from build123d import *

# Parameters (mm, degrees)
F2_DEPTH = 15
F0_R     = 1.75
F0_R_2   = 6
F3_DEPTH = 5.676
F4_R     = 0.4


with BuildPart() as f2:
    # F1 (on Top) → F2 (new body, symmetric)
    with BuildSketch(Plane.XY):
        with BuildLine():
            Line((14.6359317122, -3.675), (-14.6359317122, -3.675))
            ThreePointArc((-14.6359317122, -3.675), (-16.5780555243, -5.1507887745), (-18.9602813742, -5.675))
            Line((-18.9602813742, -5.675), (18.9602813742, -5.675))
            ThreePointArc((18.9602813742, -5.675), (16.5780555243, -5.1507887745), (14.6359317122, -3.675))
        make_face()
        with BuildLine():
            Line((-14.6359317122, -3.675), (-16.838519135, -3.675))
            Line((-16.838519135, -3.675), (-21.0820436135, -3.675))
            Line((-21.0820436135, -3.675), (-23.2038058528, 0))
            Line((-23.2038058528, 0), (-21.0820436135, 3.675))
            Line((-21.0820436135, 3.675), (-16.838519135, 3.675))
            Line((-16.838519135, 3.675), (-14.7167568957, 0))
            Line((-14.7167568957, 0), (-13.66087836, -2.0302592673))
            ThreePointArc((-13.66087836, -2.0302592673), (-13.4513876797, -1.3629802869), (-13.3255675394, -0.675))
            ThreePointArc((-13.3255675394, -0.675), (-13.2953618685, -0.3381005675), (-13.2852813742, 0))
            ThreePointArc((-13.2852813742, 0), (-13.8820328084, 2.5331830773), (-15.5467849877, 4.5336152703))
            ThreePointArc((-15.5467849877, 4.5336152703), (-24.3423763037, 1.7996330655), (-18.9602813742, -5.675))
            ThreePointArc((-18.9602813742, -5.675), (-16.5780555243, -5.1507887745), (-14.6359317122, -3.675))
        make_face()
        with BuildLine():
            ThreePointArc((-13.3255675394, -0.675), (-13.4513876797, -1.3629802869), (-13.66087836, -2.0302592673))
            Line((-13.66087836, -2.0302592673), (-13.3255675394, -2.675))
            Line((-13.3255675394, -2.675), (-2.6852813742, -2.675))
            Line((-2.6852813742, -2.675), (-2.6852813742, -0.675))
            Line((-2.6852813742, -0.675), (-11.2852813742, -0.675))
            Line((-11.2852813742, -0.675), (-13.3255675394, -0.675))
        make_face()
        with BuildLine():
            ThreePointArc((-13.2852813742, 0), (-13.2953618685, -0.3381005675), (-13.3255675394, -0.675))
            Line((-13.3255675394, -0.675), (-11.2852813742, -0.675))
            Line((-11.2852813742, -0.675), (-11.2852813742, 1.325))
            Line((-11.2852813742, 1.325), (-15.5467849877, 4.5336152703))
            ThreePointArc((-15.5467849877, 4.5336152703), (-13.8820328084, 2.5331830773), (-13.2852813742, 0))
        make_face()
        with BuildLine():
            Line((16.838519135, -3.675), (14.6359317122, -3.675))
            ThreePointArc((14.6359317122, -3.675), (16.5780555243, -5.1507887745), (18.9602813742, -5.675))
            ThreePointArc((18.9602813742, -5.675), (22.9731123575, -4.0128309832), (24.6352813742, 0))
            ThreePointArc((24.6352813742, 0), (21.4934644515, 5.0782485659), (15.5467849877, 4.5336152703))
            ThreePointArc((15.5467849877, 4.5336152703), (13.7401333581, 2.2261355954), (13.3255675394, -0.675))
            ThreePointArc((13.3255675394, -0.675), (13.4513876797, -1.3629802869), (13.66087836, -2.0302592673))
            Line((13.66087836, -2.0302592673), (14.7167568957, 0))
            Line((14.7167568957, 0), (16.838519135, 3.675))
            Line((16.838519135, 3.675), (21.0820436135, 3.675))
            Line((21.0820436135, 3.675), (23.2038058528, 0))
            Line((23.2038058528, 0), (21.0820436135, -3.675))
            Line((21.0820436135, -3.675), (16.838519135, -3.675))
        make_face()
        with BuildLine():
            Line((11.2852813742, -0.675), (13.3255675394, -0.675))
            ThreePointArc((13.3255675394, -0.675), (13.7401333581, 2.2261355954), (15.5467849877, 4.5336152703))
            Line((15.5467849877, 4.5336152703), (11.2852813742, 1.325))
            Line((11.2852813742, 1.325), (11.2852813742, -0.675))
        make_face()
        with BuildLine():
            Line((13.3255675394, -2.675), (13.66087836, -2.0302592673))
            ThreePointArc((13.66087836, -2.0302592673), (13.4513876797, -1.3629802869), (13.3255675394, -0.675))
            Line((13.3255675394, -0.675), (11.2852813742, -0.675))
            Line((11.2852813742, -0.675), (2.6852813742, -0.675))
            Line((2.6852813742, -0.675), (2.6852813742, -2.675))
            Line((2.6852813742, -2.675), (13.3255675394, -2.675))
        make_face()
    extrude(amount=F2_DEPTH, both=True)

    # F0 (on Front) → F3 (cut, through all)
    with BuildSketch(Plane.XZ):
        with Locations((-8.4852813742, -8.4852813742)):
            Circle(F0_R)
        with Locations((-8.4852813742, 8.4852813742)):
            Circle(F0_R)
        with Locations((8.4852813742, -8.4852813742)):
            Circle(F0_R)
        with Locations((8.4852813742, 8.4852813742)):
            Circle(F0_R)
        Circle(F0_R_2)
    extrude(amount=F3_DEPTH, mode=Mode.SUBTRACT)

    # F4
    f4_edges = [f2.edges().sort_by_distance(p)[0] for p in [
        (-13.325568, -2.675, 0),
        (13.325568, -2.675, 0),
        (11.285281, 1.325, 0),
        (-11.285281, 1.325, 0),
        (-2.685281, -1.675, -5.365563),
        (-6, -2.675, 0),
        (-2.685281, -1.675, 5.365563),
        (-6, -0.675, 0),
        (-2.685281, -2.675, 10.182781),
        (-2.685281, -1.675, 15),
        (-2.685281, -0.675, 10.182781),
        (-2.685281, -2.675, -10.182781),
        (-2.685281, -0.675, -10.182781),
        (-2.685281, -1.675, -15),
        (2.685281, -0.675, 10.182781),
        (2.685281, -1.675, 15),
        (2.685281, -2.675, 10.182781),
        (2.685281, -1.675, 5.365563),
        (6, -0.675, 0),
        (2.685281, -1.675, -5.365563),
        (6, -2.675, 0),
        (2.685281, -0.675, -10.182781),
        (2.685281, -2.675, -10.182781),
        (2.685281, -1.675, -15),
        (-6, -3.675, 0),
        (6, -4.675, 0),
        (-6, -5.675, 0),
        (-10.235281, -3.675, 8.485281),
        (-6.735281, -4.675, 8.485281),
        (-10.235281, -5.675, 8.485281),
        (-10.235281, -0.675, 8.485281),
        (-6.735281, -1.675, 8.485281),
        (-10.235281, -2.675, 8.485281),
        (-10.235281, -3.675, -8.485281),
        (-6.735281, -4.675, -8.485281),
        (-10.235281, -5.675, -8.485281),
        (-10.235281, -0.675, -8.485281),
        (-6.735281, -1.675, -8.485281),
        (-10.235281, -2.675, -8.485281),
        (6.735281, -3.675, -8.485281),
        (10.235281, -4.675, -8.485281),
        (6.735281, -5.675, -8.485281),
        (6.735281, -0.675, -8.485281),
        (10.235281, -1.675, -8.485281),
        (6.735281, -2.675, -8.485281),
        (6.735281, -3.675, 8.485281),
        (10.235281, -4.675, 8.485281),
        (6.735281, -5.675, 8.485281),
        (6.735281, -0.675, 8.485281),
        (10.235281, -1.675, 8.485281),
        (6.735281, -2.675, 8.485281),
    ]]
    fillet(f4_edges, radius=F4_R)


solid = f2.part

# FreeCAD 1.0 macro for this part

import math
import FreeCAD as App
import Part
import Sketcher

V = App.Vector
Q = App.Units.Quantity


def edges_at(feature, points):
    """Names of the edges that pass closest to the given points."""
    edges = feature.Shape.Edges
    near = lambda p: min(range(len(edges)), key=lambda i: edges[i].distToShape(Part.Vertex(*p))[0])
    return sorted({f"Edge{near(p) + 1}" for p in points})

doc = App.newDocument("Part")
body = doc.addObject("PartDesign::Body", "Body")

# Sketch on XY plane
sketch1 = doc.addObject("Sketcher::SketchObject", "Sketch")
body.addObject(sketch1)
sketch1.AttachmentSupport = (doc.XY_Plane, [""])
sketch1.MapMode = "FlatFace"
sketch1.addGeometry([
    Part.LineSegment(V(-21.1, -3.7, 0), V(-23.2, 0, 0)),  # 0
    Part.LineSegment(V(-23.2, 0, 0), V(-21.1, 3.7, 0)),  # 1
    Part.LineSegment(V(-21.1, 3.7, 0), V(-16.8, 3.7, 0)),  # 2
    Part.LineSegment(V(-16.8, 3.7, 0), V(-14.7, 0, 0)),  # 3
    Part.LineSegment(V(-14.7, 0, 0), V(-13.7, -2, 0)),  # 4
    Part.LineSegment(V(-13.7, -2, 0), V(-13.3, -2.7, 0)),  # 5
    Part.LineSegment(V(-13.3, -2.7, 0), V(-2.7, -2.7, 0)),  # 6
    Part.LineSegment(V(-2.7, -2.7, 0), V(-2.7, -0.7, 0)),  # 7
    Part.LineSegment(V(-2.7, -0.7, 0), V(-11.3, -0.7, 0)),  # 8
    Part.LineSegment(V(-11.3, -0.7, 0), V(-11.3, 1.3, 0)),  # 9
    Part.LineSegment(V(-11.3, 1.3, 0), V(-15.5, 4.5, 0)),  # 10
    Part.ArcOfCircle(Part.Circle(V(-19, 0, 0), V(0, 0, 1), 5.7), math.radians(53), math.radians(270)),  # 11
    Part.LineSegment(V(-19, -5.7, 0), V(19, -5.7, 0)),  # 12
    Part.ArcOfCircle(Part.Circle(V(19, 0, 0), V(0, 0, 1), 5.7), math.radians(-90), math.radians(0)),  # 13
    Part.ArcOfCircle(Part.Circle(V(19, 0, 0), V(0, 0, 1), 5.7), math.radians(0), math.radians(127)),  # 14
    Part.LineSegment(V(15.5, 4.5, 0), V(11.3, 1.3, 0)),  # 15
    Part.LineSegment(V(11.3, 1.3, 0), V(11.3, -0.7, 0)),  # 16
    Part.LineSegment(V(11.3, -0.7, 0), V(2.7, -0.7, 0)),  # 17
    Part.LineSegment(V(2.7, -0.7, 0), V(2.7, -2.7, 0)),  # 18
    Part.LineSegment(V(2.7, -2.7, 0), V(13.3, -2.7, 0)),  # 19
    Part.LineSegment(V(13.3, -2.7, 0), V(13.7, -2, 0)),  # 20
    Part.LineSegment(V(13.7, -2, 0), V(14.7, 0, 0)),  # 21
    Part.LineSegment(V(14.7, 0, 0), V(16.8, 3.7, 0)),  # 22
    Part.LineSegment(V(16.8, 3.7, 0), V(21.1, 3.7, 0)),  # 23
    Part.LineSegment(V(21.1, 3.7, 0), V(23.2, 0, 0)),  # 24
    Part.LineSegment(V(23.2, 0, 0), V(21.1, -3.7, 0)),  # 25
    Part.LineSegment(V(21.1, -3.7, 0), V(-21.1, -3.7, 0)),  # 26
], False)
sketch1.addConstraint([
    Sketcher.Constraint("Coincident", 0, 2, 1, 1),
    Sketcher.Constraint("Coincident", 1, 2, 2, 1),
    Sketcher.Constraint("Coincident", 2, 2, 3, 1),
    Sketcher.Constraint("Coincident", 3, 2, 4, 1),
    Sketcher.Constraint("Coincident", 4, 2, 5, 1),
    Sketcher.Constraint("Coincident", 5, 2, 6, 1),
    Sketcher.Constraint("Coincident", 6, 2, 7, 1),
    Sketcher.Constraint("Coincident", 7, 2, 8, 1),
    Sketcher.Constraint("Coincident", 8, 2, 9, 1),
    Sketcher.Constraint("Coincident", 9, 2, 10, 1),
    Sketcher.Constraint("Tangent", 10, 2, 11, 1),
    Sketcher.Constraint("Tangent", 11, 2, 12, 1),
    Sketcher.Constraint("Tangent", 12, 2, 13, 1),
    Sketcher.Constraint("Tangent", 13, 2, 14, 1),
    Sketcher.Constraint("Tangent", 14, 2, 15, 1),
    Sketcher.Constraint("Coincident", 15, 2, 16, 1),
    Sketcher.Constraint("Coincident", 16, 2, 17, 1),
    Sketcher.Constraint("Coincident", 17, 2, 18, 1),
    Sketcher.Constraint("Coincident", 18, 2, 19, 1),
    Sketcher.Constraint("Coincident", 19, 2, 20, 1),
    Sketcher.Constraint("Coincident", 20, 2, 21, 1),
    Sketcher.Constraint("Coincident", 21, 2, 22, 1),
    Sketcher.Constraint("Coincident", 22, 2, 23, 1),
    Sketcher.Constraint("Coincident", 23, 2, 24, 1),
    Sketcher.Constraint("Coincident", 24, 2, 25, 1),
    Sketcher.Constraint("Coincident", 25, 2, 26, 1),
    Sketcher.Constraint("Coincident", 26, 2, 0, 1),
    Sketcher.Constraint("Horizontal", 2),
    Sketcher.Constraint("Horizontal", 6),
    Sketcher.Constraint("Vertical", 7),
    Sketcher.Constraint("Horizontal", 8),
    Sketcher.Constraint("Vertical", 9),
    Sketcher.Constraint("Horizontal", 12),
    Sketcher.Constraint("Vertical", 16),
    Sketcher.Constraint("Horizontal", 17),
    Sketcher.Constraint("Vertical", 18),
    Sketcher.Constraint("Horizontal", 19),
    Sketcher.Constraint("Horizontal", 23),
    Sketcher.Constraint("Horizontal", 26),
    Sketcher.Constraint("Equal", 11, 13),
    Sketcher.Constraint("Equal", 13, 14),
    Sketcher.Constraint("Symmetric", 11, 3, 13, 3, -1, 1),
    Sketcher.Constraint("Symmetric", 3, 2, 21, 2, -1, 1),
    Sketcher.Constraint("Symmetric", 0, 2, 24, 2, -1, 1),
    Sketcher.Constraint("Symmetric", 1, 2, 25, 2, -1, 1),
    Sketcher.Constraint("Symmetric", 23, 2, 26, 2, -1, 1),
    Sketcher.Constraint("Symmetric", 9, 2, 15, 2, -2),
    Sketcher.Constraint("Symmetric", 7, 2, 17, 2, -2),
    Sketcher.Constraint("Symmetric", 5, 2, 19, 2, -2),
    Sketcher.Constraint("Symmetric", 4, 2, 20, 2, -2),
    Sketcher.Constraint("PointOnObject", 0, 2, -1),
    Sketcher.Constraint("PointOnObject", 3, 2, -1),
    Sketcher.Constraint("PointOnObject", 13, 2, -1),
    Sketcher.Constraint("Parallel", 0, 3),
    Sketcher.Constraint("Parallel", 4, 5),
    Sketcher.Constraint("Parallel", 1, 22),
    Sketcher.Constraint("Vertical", 23, 2, 25, 2),
    Sketcher.Constraint("Equal", 7, 9),
    Sketcher.Constraint("DistanceY", 7, 1, 7, 2, 2.0),
    Sketcher.Constraint("Angle", 0, Q("120 deg")),
    Sketcher.Constraint("DistanceX", 8, 2, 8, 1, 8.6),
    Sketcher.Constraint("Radius", 11, 5.675),
    Sketcher.Constraint("DistanceY", 11, 2, 5, 2, 3.0),
    Sketcher.Constraint("DistanceY", 12, 2, 25, 2, 2.0),
    Sketcher.Constraint("DistanceX", 15, 2, 13, 2, 13.35),
    Sketcher.Constraint("DistanceX", 2, 2, 13, 3, 35.798801),
    Sketcher.Constraint("Distance", 5, 0.726721),
    Sketcher.Constraint("DistanceX", 2, 1, 2, 2, 4.243524),
    Sketcher.Constraint("DistanceX", 6, 1, 6, 2, 10.640286),
    Sketcher.Constraint("DistanceX", 12, 1, 12, 2, 37.920563),
])
pad1 = doc.addObject("PartDesign::Pad", "Pad")
body.addObject(pad1)
pad1.Profile = sketch1
pad1.Length = 30
pad1.Midplane = True

# Sketch on XZ plane
sketch2 = doc.addObject("Sketcher::SketchObject", "Sketch001")
body.addObject(sketch2)
sketch2.AttachmentSupport = (doc.XZ_Plane, [""])
sketch2.MapMode = "FlatFace"
sketch2.addGeometry([
    Part.Circle(V(-8.5, -8.5, 0), V(0, 0, 1), 1.8),  # 0
    Part.Circle(V(-8.5, 8.5, 0), V(0, 0, 1), 1.8),  # 1
    Part.Circle(V(8.5, -8.5, 0), V(0, 0, 1), 1.8),  # 2
    Part.Circle(V(8.5, 8.5, 0), V(0, 0, 1), 1.8),  # 3
    Part.Circle(V(0, 0, 0), V(0, 0, 1), 6),  # 4
], False)
sketch2.addConstraint([
    Sketcher.Constraint("Coincident", 4, 3, -1, 1),
    Sketcher.Constraint("Equal", 0, 1),
    Sketcher.Constraint("Equal", 1, 2),
    Sketcher.Constraint("Equal", 2, 3),
    Sketcher.Constraint("Symmetric", 1, 3, 2, 3, -1, 1),
    Sketcher.Constraint("Symmetric", 0, 3, 3, 3, -1, 1),
    Sketcher.Constraint("Symmetric", 0, 3, 2, 3, -2),
    Sketcher.Constraint("Diameter", 4, 12.0),
    Sketcher.Constraint("Diameter", 0, 3.5),
    Sketcher.Constraint("DistanceX", 0, 3, -1, 1, 8.485281),
    Sketcher.Constraint("DistanceY", 0, 3, -1, 1, 8.485281),
])
pocket1 = doc.addObject("PartDesign::Pocket", "Pocket")
body.addObject(pocket1)
pocket1.Profile = sketch2
pocket1.Type = "ThroughAll"
pocket1.Reversed = True
doc.recompute()

fillet = doc.addObject("PartDesign::Fillet", "Fillet")
body.addObject(fillet)
fillet.Base = (pocket1, edges_at(pocket1, [
    (-13.326, -2.675, 0),
    (13.326, -2.675, 0),
    (11.285, 1.325, 0),
    (-11.285, 1.325, 0),
    (-2.685, -1.675, -5.366),
    (-6, -2.675, 0),
    (-2.685, -1.675, 5.366),
    (-6, -0.675, 0),
    (-2.685, -2.675, 10.183),
    (-2.685, -1.675, 15),
    (-2.685, -0.675, 10.183),
    (-2.685, -2.675, -10.183),
    (-2.685, -0.675, -10.183),
    (-2.685, -1.675, -15),
    (2.685, -0.675, 10.183),
    (2.685, -1.675, 15),
    (2.685, -2.675, 10.183),
    (2.685, -1.675, 5.366),
    (6, -0.675, 0),
    (2.685, -1.675, -5.366),
    (6, -2.675, 0),
    (2.685, -0.675, -10.183),
    (2.685, -2.675, -10.183),
    (2.685, -1.675, -15),
    (-6, -3.675, 0),
    (6, -4.675, 0),
    (-6, -5.675, 0),
    (-10.235, -3.675, 8.485),
    (-6.735, -4.675, 8.485),
    (-10.235, -5.675, 8.485),
    (-10.235, -0.675, 8.485),
    (-6.735, -1.675, 8.485),
    (-10.235, -2.675, 8.485),
    (-10.235, -3.675, -8.485),
    (-6.735, -4.675, -8.485),
    (-10.235, -5.675, -8.485),
    (-10.235, -0.675, -8.485),
    (-6.735, -1.675, -8.485),
    (-10.235, -2.675, -8.485),
    (6.735, -3.675, -8.485),
    (10.235, -4.675, -8.485),
    (6.735, -5.675, -8.485),
    (6.735, -0.675, -8.485),
    (10.235, -1.675, -8.485),
    (6.735, -2.675, -8.485),
    (6.735, -3.675, 8.485),
    (10.235, -4.675, 8.485),
    (6.735, -5.675, 8.485),
    (6.735, -0.675, 8.485),
    (10.235, -1.675, 8.485),
    (6.735, -2.675, 8.485),
]))
fillet.Radius = 0.4

doc.recompute()
